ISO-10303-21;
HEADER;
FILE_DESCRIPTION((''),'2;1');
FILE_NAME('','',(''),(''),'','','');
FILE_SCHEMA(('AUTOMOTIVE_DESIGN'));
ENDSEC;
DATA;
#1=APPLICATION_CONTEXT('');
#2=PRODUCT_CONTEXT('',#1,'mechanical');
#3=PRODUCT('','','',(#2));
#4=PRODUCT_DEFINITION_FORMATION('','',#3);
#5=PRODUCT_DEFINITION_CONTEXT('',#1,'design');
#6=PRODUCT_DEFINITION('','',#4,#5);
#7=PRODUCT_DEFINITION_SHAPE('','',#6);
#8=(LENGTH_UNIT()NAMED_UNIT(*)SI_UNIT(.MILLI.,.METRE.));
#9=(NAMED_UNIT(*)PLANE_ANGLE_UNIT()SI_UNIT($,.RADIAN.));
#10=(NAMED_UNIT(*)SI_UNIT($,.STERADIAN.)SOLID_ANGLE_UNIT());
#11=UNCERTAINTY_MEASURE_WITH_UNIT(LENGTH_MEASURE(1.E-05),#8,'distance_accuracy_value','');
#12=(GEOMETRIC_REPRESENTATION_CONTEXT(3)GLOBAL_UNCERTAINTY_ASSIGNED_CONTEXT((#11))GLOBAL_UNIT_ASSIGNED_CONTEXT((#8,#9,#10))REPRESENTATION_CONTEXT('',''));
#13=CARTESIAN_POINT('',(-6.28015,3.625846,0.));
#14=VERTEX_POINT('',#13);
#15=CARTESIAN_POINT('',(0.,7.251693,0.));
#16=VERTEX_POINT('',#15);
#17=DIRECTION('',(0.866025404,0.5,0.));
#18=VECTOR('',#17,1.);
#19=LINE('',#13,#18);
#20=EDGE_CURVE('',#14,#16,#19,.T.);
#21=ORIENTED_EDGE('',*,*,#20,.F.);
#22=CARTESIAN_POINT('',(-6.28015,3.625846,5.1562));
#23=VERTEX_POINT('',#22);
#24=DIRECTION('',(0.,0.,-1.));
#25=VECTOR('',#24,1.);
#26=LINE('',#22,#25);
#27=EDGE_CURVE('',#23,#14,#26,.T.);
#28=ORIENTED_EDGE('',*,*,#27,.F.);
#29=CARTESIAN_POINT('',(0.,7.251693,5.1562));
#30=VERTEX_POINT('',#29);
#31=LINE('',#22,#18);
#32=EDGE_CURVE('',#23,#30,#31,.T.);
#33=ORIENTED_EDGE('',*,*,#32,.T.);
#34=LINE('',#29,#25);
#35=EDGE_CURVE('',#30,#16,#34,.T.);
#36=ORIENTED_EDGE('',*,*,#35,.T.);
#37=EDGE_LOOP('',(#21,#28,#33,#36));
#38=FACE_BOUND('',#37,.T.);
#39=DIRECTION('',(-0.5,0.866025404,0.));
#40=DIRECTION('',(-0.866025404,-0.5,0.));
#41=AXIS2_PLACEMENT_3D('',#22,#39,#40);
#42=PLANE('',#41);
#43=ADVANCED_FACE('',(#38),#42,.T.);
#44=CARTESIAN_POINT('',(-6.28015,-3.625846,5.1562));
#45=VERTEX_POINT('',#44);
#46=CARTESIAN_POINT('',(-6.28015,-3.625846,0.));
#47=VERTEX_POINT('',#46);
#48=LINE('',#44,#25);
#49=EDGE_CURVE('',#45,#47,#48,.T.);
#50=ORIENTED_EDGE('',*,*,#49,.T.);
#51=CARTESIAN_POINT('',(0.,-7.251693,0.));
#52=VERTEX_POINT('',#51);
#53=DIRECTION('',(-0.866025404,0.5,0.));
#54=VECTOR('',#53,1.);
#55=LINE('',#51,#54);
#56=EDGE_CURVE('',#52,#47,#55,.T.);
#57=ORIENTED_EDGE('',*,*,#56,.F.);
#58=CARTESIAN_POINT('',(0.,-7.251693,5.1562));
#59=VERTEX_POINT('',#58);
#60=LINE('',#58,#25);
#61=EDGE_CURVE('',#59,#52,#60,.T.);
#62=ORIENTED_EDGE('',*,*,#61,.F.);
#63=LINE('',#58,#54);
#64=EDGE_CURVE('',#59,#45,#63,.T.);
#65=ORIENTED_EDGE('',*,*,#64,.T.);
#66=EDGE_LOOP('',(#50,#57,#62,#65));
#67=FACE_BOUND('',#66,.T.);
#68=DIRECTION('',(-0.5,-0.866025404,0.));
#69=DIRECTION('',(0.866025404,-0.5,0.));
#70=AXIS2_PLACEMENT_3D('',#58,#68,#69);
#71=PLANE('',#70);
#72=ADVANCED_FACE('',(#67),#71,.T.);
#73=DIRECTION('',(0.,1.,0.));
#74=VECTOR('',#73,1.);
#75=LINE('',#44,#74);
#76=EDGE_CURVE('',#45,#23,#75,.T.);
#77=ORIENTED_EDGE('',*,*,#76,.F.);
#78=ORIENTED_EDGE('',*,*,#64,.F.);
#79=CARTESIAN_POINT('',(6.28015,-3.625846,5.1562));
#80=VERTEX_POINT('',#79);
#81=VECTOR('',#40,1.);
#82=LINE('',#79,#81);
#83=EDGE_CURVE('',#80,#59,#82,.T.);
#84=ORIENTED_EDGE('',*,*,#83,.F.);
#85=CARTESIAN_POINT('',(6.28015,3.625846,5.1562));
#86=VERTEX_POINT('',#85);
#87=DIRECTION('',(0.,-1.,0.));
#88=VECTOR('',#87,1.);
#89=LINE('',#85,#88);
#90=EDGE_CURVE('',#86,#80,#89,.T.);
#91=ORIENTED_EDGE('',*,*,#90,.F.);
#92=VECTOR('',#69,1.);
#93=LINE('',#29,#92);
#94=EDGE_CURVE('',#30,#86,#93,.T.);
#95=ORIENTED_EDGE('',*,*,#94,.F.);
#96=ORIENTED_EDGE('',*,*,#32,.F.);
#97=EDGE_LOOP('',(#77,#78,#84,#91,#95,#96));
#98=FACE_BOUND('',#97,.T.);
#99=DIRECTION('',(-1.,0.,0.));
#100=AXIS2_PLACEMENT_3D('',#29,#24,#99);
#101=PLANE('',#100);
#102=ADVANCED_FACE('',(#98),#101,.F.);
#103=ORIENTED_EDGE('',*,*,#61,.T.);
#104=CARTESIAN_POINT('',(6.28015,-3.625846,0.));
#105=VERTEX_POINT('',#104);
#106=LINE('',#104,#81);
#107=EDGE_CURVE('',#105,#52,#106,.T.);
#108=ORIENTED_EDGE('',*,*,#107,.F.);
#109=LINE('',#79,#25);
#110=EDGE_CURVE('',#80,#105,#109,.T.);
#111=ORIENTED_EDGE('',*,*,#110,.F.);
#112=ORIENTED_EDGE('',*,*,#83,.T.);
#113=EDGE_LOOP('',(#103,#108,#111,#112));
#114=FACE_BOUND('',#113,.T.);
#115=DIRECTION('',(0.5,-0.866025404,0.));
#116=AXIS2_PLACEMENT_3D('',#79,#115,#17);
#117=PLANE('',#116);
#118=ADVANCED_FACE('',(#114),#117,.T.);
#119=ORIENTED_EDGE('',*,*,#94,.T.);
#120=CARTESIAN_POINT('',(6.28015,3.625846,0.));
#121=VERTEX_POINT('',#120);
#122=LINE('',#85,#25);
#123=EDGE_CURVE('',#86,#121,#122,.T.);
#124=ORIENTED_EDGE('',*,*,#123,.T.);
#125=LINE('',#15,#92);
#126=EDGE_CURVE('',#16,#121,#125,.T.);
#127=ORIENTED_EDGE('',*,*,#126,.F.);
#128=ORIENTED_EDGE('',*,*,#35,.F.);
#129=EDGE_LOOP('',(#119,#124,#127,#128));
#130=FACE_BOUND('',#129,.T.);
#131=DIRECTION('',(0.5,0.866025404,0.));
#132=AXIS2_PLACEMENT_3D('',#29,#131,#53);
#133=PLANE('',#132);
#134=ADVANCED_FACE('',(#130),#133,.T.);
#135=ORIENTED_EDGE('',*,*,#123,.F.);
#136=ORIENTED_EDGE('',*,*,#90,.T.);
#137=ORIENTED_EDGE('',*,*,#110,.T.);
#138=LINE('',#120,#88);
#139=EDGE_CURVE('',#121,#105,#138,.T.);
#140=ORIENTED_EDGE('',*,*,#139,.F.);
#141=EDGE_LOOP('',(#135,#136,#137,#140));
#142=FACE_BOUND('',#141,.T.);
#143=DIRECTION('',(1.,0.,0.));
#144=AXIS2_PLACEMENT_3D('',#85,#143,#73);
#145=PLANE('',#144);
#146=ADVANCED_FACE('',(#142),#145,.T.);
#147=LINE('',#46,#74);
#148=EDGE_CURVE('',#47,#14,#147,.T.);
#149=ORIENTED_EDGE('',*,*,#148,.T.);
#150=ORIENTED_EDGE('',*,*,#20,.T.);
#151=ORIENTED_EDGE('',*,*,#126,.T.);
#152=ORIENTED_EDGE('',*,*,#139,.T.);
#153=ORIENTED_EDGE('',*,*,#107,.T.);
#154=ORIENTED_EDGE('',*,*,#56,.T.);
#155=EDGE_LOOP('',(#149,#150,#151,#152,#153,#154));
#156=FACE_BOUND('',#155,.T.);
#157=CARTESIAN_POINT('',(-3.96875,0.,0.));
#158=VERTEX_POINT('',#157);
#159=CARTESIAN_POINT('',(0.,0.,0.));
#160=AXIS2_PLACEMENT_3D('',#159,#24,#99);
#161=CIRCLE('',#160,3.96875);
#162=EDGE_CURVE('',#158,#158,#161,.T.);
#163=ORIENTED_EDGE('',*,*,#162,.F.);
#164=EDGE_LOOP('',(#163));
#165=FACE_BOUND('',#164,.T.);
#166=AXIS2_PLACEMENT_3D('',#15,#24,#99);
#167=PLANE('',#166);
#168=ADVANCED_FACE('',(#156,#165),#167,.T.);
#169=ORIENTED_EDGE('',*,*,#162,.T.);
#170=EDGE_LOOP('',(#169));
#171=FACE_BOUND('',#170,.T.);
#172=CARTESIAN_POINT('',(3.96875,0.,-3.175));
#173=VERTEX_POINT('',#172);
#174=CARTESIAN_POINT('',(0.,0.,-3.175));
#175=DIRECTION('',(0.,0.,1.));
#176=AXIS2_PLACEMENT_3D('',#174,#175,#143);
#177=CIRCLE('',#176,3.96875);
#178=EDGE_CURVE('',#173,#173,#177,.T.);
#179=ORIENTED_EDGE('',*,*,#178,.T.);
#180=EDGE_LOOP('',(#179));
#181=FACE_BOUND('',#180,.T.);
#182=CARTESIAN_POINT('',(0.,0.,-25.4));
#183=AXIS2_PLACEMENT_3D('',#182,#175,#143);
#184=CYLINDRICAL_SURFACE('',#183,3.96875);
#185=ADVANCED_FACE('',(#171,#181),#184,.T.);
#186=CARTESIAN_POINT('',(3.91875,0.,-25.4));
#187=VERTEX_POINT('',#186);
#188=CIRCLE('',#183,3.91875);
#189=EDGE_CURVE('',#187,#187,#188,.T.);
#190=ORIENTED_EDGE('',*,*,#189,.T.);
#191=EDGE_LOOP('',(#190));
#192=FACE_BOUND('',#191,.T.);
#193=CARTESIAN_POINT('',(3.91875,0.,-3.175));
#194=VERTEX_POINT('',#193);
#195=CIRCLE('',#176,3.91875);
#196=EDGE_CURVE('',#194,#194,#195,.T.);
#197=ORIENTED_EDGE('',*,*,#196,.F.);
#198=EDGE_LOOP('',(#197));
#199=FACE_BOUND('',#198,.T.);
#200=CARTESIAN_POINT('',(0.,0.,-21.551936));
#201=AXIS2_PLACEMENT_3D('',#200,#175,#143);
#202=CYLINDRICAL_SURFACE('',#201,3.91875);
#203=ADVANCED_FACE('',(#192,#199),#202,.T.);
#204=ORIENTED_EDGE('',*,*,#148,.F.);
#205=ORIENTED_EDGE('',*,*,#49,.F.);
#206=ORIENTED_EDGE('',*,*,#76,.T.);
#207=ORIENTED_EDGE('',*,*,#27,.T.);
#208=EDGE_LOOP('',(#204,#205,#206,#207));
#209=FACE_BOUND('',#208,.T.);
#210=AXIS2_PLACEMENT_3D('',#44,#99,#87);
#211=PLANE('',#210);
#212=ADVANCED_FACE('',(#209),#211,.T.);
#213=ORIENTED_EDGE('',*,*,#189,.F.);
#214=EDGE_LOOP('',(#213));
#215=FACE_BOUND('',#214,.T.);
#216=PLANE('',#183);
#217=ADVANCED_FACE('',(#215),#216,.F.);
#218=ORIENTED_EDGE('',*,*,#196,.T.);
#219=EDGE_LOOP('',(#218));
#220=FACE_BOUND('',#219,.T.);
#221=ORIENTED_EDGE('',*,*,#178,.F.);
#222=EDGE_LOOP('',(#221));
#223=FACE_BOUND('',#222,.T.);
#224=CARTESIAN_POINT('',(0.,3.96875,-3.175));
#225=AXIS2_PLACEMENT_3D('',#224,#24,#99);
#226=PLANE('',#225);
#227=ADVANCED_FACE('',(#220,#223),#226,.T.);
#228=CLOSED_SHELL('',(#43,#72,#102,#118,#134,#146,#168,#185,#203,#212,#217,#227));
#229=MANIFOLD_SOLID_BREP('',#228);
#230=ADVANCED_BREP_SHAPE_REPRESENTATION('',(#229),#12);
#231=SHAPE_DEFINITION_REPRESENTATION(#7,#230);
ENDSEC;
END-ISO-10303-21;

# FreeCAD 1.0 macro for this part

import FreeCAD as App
import Part
import Sketcher
Q = App.Units.Quantity


def add_polygon(sketch, points):
    """Adds a closed chain of lines whose ends are joined by coincident constraints."""
    first, n = sketch.GeometryCount, len(points)
    for a, b in zip(points, points[1:] + points[:1]):
        sketch.addGeometry(Part.LineSegment(App.Vector(*a, 0), App.Vector(*b, 0)), False)
    for i in range(n):
        sketch.addConstraint(Sketcher.Constraint("Coincident", first + i, 2, first + (i + 1) % n, 1))

doc = App.newDocument("Part")
body = doc.addObject("PartDesign::Body", "Body")

sketch1 = body.newObject("Sketcher::SketchObject", "Sketch")
sketch1.AttachmentSupport = (doc.getObject("XY_Plane"), [""])
sketch1.MapMode = "FlatFace"
add_polygon(sketch1, [(6.28015, 3.625846), (0, 7.251693), (-6.28015, 3.625846), (-6.28015, -3.625846), (0, -7.251693), (6.28015, -3.625846)])
sketch1.addConstraint([
    Sketcher.Constraint("Vertical", 2),
    Sketcher.Constraint("Vertical", 5),
    Sketcher.Constraint("Symmetric", 0, 2, 3, 2, -1, 1),
    Sketcher.Constraint("Symmetric", 1, 2, 4, 2, -1, 1),
    Sketcher.Constraint("PointOnObject", 0, 2, -2),
    Sketcher.Constraint("Parallel", 0, 3),
    Sketcher.Constraint("Horizontal", 2, 2, 4, 2),
    Sketcher.Constraint("Angle", 0, Q("150 deg")),
    Sketcher.Constraint("DistanceX", 2, 2, 4, 2, Q("0.4945 in")),
    Sketcher.Constraint("DistanceY", 2, 2, 2, 1, Q("7.251693 mm")),
])
pad1 = body.newObject("PartDesign::Pad", "Pad")
pad1.Profile = sketch1
pad1.Length = Q("0.203 in")

sketch2 = body.newObject("Sketcher::SketchObject", "Sketch001")
sketch2.AttachmentSupport = (doc.getObject("XY_Plane"), [""])
sketch2.MapMode = "FlatFace"
sketch2.addGeometry(Part.Circle(App.Vector(0, 0, 0), App.Vector(0, 0, 1), 3.96875), False)
sketch2.addConstraint([
    Sketcher.Constraint("Coincident", 0, 3, -1, 1),
    Sketcher.Constraint("Diameter", 0, Q("0.3125 in")),
])
pad2 = body.newObject("PartDesign::Pad", "Pad001")
pad2.Profile = sketch2
pad2.Length = Q("1 in")
pad2.Reversed = True

sketch3 = body.newObject("Sketcher::SketchObject", "Sketch002")
sketch3.AttachmentSupport = (doc.getObject("YZ_Plane"), [""])
sketch3.MapMode = "FlatFace"
add_polygon(sketch3, [(3.96875, -3.175), (3.91875, -3.175), (3.91875, -25.4), (3.96875, -25.4)])
sketch3.addConstraint([
    Sketcher.Constraint("Horizontal", 0),
    Sketcher.Constraint("Vertical", 1),
    Sketcher.Constraint("Horizontal", 2),
    Sketcher.Constraint("Vertical", 3),
    Sketcher.Constraint("DistanceY", 1, 2, -1, 1, Q("1 in")),
    Sketcher.Constraint("DistanceY", 1, 2, 1, 1, Q("0.875 in")),
    Sketcher.Constraint("DistanceX", -1, 1, 2, 2, Q("0.15625 in")),
    Sketcher.Constraint("DistanceX", 0, 2, 0, 1, Q("0.05 mm")),
])
groove = body.newObject("PartDesign::Groove", "Groove")
groove.Profile = sketch3
groove.ReferenceAxis = (sketch3, ["V_Axis"])
groove.Angle = 360

doc.recompute()
